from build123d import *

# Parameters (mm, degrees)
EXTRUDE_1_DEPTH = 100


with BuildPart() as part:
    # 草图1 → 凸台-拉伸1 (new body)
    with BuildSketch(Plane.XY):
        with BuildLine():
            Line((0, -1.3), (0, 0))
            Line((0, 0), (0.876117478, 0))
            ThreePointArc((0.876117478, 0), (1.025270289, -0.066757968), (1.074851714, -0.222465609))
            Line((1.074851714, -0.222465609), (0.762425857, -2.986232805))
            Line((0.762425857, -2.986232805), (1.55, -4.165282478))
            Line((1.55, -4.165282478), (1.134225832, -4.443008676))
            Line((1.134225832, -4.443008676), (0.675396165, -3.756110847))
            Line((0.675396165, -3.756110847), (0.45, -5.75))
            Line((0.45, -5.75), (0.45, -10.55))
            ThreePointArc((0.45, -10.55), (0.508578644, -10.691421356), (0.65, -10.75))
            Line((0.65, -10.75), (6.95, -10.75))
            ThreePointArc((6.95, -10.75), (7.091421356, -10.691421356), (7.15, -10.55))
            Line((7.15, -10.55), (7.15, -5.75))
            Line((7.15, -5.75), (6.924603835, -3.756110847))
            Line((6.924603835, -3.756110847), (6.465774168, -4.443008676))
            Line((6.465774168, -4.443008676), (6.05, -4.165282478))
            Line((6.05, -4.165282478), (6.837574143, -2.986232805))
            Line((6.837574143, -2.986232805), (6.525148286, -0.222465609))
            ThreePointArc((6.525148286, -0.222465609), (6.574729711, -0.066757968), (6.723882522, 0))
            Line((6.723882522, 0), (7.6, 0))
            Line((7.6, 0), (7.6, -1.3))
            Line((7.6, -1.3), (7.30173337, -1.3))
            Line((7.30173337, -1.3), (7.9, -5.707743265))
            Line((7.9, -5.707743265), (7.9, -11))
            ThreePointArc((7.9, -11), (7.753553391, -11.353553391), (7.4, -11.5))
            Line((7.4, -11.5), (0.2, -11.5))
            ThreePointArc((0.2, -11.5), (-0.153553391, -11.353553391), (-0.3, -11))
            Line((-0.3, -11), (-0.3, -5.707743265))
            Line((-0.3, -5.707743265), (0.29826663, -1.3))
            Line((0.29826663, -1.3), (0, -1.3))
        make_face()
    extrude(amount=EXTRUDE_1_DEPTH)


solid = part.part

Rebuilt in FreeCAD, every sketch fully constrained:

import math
import FreeCAD as App
import Part
import Sketcher

V = App.Vector

doc = App.newDocument("Part")
body = doc.addObject("PartDesign::Body", "Body")

sketch1 = doc.addObject("Sketcher::SketchObject", "Sketch")
body.addObject(sketch1)
sketch1.AttachmentSupport = (doc.XY_Plane, [""])
sketch1.MapMode = "FlatFace"
sketch1.addGeometry([
    Part.LineSegment(V(0, 0, 0), V(0, -1.3, 0)),
    Part.LineSegment(V(0, -1.3, 0), V(0.3, -1.3, 0)),
    Part.LineSegment(V(0.3, -1.3, 0), V(-0.3, -5.71, 0)),
    Part.LineSegment(V(-0.3, -5.71, 0), V(-0.3, -11, 0)),
    Part.ArcOfCircle(Part.Circle(V(0.2, -11, 0), V(0, 0, 1), 0.5), math.radians(180), math.radians(270)),
    Part.LineSegment(V(0.2, -11.5, 0), V(7.4, -11.5, 0)),
    Part.ArcOfCircle(Part.Circle(V(7.4, -11, 0), V(0, 0, 1), 0.5), math.radians(-90), math.radians(0)),
    Part.LineSegment(V(7.9, -11, 0), V(7.9, -5.71, 0)),
    Part.LineSegment(V(7.9, -5.71, 0), V(7.3, -1.3, 0)),
    Part.LineSegment(V(7.3, -1.3, 0), V(7.6, -1.3, 0)),
    Part.LineSegment(V(7.6, -1.3, 0), V(7.6, 0, 0)),
    Part.LineSegment(V(7.6, 0, 0), V(6.72, 0, 0)),
    Part.ArcOfCircle(Part.Circle(V(6.72, -0.2, 0), V(0, 0, 1), 0.2), math.radians(90), math.radians(186)),
    Part.LineSegment(V(6.53, -0.22, 0), V(6.84, -2.99, 0)),
    Part.LineSegment(V(6.84, -2.99, 0), V(6.05, -4.17, 0)),
    Part.LineSegment(V(6.05, -4.17, 0), V(6.47, -4.44, 0)),
    Part.LineSegment(V(6.47, -4.44, 0), V(6.92, -3.76, 0)),
    Part.LineSegment(V(6.92, -3.76, 0), V(7.15, -5.75, 0)),
    Part.LineSegment(V(7.15, -5.75, 0), V(7.15, -10.55, 0)),
    Part.ArcOfCircle(Part.Circle(V(6.95, -10.55, 0), V(0, 0, 1), 0.2), math.radians(-90), math.radians(0)),
    Part.LineSegment(V(6.95, -10.75, 0), V(0.65, -10.75, 0)),
    Part.ArcOfCircle(Part.Circle(V(0.65, -10.55, 0), V(0, 0, 1), 0.2), math.radians(-180), math.radians(-90)),
    Part.LineSegment(V(0.45, -10.55, 0), V(0.45, -5.75, 0)),
    Part.LineSegment(V(0.45, -5.75, 0), V(0.68, -3.76, 0)),
    Part.LineSegment(V(0.68, -3.76, 0), V(1.13, -4.44, 0)),
    Part.LineSegment(V(1.13, -4.44, 0), V(1.55, -4.17, 0)),
    Part.LineSegment(V(1.55, -4.17, 0), V(0.76, -2.99, 0)),
    Part.LineSegment(V(0.76, -2.99, 0), V(1.07, -0.22, 0)),
    Part.ArcOfCircle(Part.Circle(V(0.88, -0.2, 0), V(0, 0, 1), 0.2), math.radians(-6), math.radians(90)),
    Part.LineSegment(V(0.88, 0, 0), V(0, 0, 0)),
], False)
sketch1.addConstraint([
    Sketcher.Constraint("Coincident", 0, 2, 1, 1),
    Sketcher.Constraint("Coincident", 1, 2, 2, 1),
    Sketcher.Constraint("Coincident", 2, 2, 3, 1),
    Sketcher.Constraint("Tangent", 3, 2, 4, 1),
    Sketcher.Constraint("Tangent", 4, 2, 5, 1),
    Sketcher.Constraint("Tangent", 5, 2, 6, 1),
    Sketcher.Constraint("Tangent", 6, 2, 7, 1),
    Sketcher.Constraint("Coincident", 7, 2, 8, 1),
    Sketcher.Constraint("Coincident", 8, 2, 9, 1),
    Sketcher.Constraint("Coincident", 9, 2, 10, 1),
    Sketcher.Constraint("Coincident", 10, 2, 11, 1),
    Sketcher.Constraint("Tangent", 11, 2, 12, 1),
    Sketcher.Constraint("Tangent", 12, 2, 13, 1),
    Sketcher.Constraint("Coincident", 13, 2, 14, 1),
    Sketcher.Constraint("Coincident", 14, 2, 15, 1),
    Sketcher.Constraint("Coincident", 15, 2, 16, 1),
    Sketcher.Constraint("Coincident", 16, 2, 17, 1),
    Sketcher.Constraint("Coincident", 17, 2, 18, 1),
    Sketcher.Constraint("Tangent", 18, 2, 19, 2),
    Sketcher.Constraint("Tangent", 19, 1, 20, 1),
    Sketcher.Constraint("Tangent", 20, 2, 21, 2),
    Sketcher.Constraint("Tangent", 21, 1, 22, 1),
    Sketcher.Constraint("Coincident", 22, 2, 23, 1),
    Sketcher.Constraint("Coincident", 23, 2, 24, 1),
    Sketcher.Constraint("Coincident", 24, 2, 25, 1),
    Sketcher.Constraint("Coincident", 25, 2, 26, 1),
    Sketcher.Constraint("Coincident", 26, 2, 27, 1),
    Sketcher.Constraint("Tangent", 27, 2, 28, 1),
    Sketcher.Constraint("Tangent", 28, 2, 29, 1),
    Sketcher.Constraint("Coincident", 29, 2, 0, 1),
    Sketcher.Constraint("Vertical", 0),
    Sketcher.Constraint("Horizontal", 1),
    Sketcher.Constraint("Vertical", 3),
    Sketcher.Constraint("Horizontal", 5),
    Sketcher.Constraint("Vertical", 7),
    Sketcher.Constraint("Horizontal", 9),
    Sketcher.Constraint("Vertical", 10),
    Sketcher.Constraint("Horizontal", 11),
    Sketcher.Constraint("Vertical", 18),
    Sketcher.Constraint("Horizontal", 20),
    Sketcher.Constraint("Vertical", 22),
    Sketcher.Constraint("Horizontal", 29),
    Sketcher.Constraint("Coincident", 29, 2, -1, 1),
    Sketcher.Constraint("Equal", 4, 6),
    Sketcher.Constraint("Equal", 12, 19),
    Sketcher.Constraint("Equal", 19, 21),
    Sketcher.Constraint("Equal", 21, 28),
    Sketcher.Constraint("PointOnObject", 10, 2, -1),
    Sketcher.Constraint("Perpendicular", 14, 15),
    Sketcher.Constraint("Perpendicular", 15, 16),
    Sketcher.Constraint("Parallel", 13, 17),
    Sketcher.Constraint("Perpendicular", 24, 25),
    Sketcher.Constraint("Perpendicular", 25, 26),
    Sketcher.Constraint("Parallel", 23, 27),
    Sketcher.Constraint("Horizontal", 2, 2, 7, 2),
    Sketcher.Constraint("Horizontal", 1, 2, 8, 2),
    Sketcher.Constraint("Horizontal", 17, 2, 22, 2),
    Sketcher.Constraint("Horizontal", 16, 2, 23, 2),
    Sketcher.Constraint("Horizontal", 15, 2, 24, 2),
    Sketcher.Constraint("Horizontal", 14, 2, 25, 2),
    Sketcher.Constraint("Horizontal", 13, 2, 26, 2),
    Sketcher.Constraint("Horizontal", 12, 2, 27, 2),
    Sketcher.Constraint("Equal", 1, 9),
    Sketcher.Constraint("Equal", 11, 29),
    Sketcher.Constraint("Equal", 2, 8),
    Sketcher.Constraint("Equal", 16, 24),
    Sketcher.Constraint("Radius", 4, 0.5),
    Sketcher.Constraint("Radius", 12, 0.2),
    Sketcher.Constraint("DistanceX", 5, 1, 5, 2, 7.2),
    Sketcher.Constraint("DistanceX", 20, 2, 20, 1, 6.3),
    Sketcher.Constraint("DistanceY", 0, 2, 0, 1, 1.3),
    Sketcher.Constraint("DistanceY", 18, 2, 18, 1, 4.8),
    Sketcher.Constraint("DistanceY", 4, 3, -1, 1, 11.0),
    Sketcher.Constraint("Distance", 15, 0.5),
    Sketcher.Constraint("DistanceX", -1, 1, 4, 3, 0.2),
    Sketcher.Constraint("DistanceX", 14, 2, 17, 2, 1.1),
    Sketcher.Constraint("DistanceY", 19, 3, -1, 1, 10.55),
    Sketcher.Constraint("DistanceX", 15, 2, 13, 2, 0.3718),
    Sketcher.Constraint("Distance", 2, 4.44816),
    Sketcher.Constraint("Distance", 13, 2.78137),
    Sketcher.Constraint("Distance", 17, 2.006588),
    Sketcher.Constraint("DistanceX", 1, 1, 1, 2, 0.298267),
    Sketcher.Constraint("DistanceX", 11, 2, 11, 1, 0.876117),
])
pad1 = doc.addObject("PartDesign::Pad", "Pad")
body.addObject(pad1)
pad1.Profile = sketch1
pad1.Length = 100

doc.recompute()
